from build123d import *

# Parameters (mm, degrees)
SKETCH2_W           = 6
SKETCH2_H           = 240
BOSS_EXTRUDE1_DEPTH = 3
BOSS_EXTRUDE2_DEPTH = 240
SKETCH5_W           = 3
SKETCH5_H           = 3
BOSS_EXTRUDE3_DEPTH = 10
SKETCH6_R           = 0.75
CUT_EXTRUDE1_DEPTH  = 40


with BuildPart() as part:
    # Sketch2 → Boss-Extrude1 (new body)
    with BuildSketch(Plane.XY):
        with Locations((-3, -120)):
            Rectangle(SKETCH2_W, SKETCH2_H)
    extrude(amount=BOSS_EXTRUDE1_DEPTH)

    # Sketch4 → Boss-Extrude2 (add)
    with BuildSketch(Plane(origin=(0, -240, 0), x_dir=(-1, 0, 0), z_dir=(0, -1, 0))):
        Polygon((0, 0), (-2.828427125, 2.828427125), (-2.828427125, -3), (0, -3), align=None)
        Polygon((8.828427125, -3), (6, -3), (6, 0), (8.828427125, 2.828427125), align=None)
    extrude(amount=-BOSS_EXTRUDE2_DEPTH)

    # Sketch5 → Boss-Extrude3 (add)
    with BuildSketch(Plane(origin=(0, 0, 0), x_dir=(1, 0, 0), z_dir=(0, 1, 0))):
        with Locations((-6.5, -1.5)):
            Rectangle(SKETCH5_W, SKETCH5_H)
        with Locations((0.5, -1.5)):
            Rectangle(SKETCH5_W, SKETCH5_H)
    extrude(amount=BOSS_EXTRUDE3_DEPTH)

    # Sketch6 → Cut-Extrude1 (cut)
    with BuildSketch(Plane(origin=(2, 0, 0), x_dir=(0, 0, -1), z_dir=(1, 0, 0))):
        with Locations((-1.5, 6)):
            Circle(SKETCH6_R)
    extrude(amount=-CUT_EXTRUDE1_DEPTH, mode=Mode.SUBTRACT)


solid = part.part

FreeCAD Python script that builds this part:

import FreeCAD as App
import Part
import Sketcher

doc = App.newDocument("Part")
body = doc.addObject("PartDesign::Body", "Body")

# Sketch on XY plane
sketch1 = doc.addObject("Sketcher::SketchObject", "Sketch")
body.addObject(sketch1)
sketch1.AttachmentSupport = (doc.XY_Plane, [""])
sketch1.MapMode = "FlatFace"
sketch1.addGeometry([
    Part.LineSegment(App.Vector(-6, 0, 0), App.Vector(-6, -240, 0)),
    Part.LineSegment(App.Vector(-6, -240, 0), App.Vector(0, -240, 0)),
    Part.LineSegment(App.Vector(0, -240, 0), App.Vector(0, 0, 0)),
    Part.LineSegment(App.Vector(0, 0, 0), App.Vector(-6, 0, 0)),
], False)
sketch1.addConstraint([
    Sketcher.Constraint("Coincident", 0, 2, 1, 1),
    Sketcher.Constraint("Coincident", 1, 2, 2, 1),
    Sketcher.Constraint("Coincident", 2, 2, 3, 1),
    Sketcher.Constraint("Coincident", 3, 2, 0, 1),
    Sketcher.Constraint("Vertical", 0),
    Sketcher.Constraint("Horizontal", 1),
    Sketcher.Constraint("Vertical", 2),
    Sketcher.Constraint("Horizontal", 3),
    Sketcher.Constraint("Coincident", 2, 2, -1, 1),
    Sketcher.Constraint("DistanceX", 1, 1, 1, 2, 6.0),
    Sketcher.Constraint("DistanceY", 0, 2, 0, 1, 240.0),
])
pad1 = doc.addObject("PartDesign::Pad", "Pad")
body.addObject(pad1)
pad1.Profile = sketch1
pad1.Length = 3

# Sketch on XZ plane
sketch2 = doc.addObject("Sketcher::SketchObject", "Sketch001")
body.addObject(sketch2)
sketch2.AttachmentSupport = (doc.XZ_Plane, [""])
sketch2.MapMode = "FlatFace"
sketch2.AttachmentOffset = App.Placement(App.Vector(0, 0, 240), App.Rotation())
sketch2.addGeometry([
    Part.LineSegment(App.Vector(0, 0, 0), App.Vector(2.8, -2.8, 0)),  # 0
    Part.LineSegment(App.Vector(2.8, -2.8, 0), App.Vector(2.8, 3, 0)),  # 1
    Part.LineSegment(App.Vector(2.8, 3, 0), App.Vector(0, 3, 0)),  # 2
    Part.LineSegment(App.Vector(0, 3, 0), App.Vector(0, 0, 0)),  # 3
    Part.LineSegment(App.Vector(-6, 3, 0), App.Vector(-8.8, 3, 0)),  # 4
    Part.LineSegment(App.Vector(-8.8, 3, 0), App.Vector(-8.8, -2.8, 0)),  # 5
    Part.LineSegment(App.Vector(-8.8, -2.8, 0), App.Vector(-6, 0, 0)),  # 6
    Part.LineSegment(App.Vector(-6, 0, 0), App.Vector(-6, 3, 0)),  # 7
], False)
sketch2.addConstraint([
    Sketcher.Constraint("Coincident", 0, 2, 1, 1),
    Sketcher.Constraint("Coincident", 1, 2, 2, 1),
    Sketcher.Constraint("Coincident", 2, 2, 3, 1),
    Sketcher.Constraint("Coincident", 3, 2, 0, 1),
    Sketcher.Constraint("Coincident", 4, 2, 5, 1),
    Sketcher.Constraint("Coincident", 5, 2, 6, 1),
    Sketcher.Constraint("Coincident", 6, 2, 7, 1),
    Sketcher.Constraint("Coincident", 7, 2, 4, 1),
    Sketcher.Constraint("Vertical", 1),
    Sketcher.Constraint("Horizontal", 2),
    Sketcher.Constraint("Vertical", 3),
    Sketcher.Constraint("Horizontal", 4),
    Sketcher.Constraint("Vertical", 5),
    Sketcher.Constraint("Vertical", 7),
    Sketcher.Constraint("Coincident", 3, 2, -1, 1),
    Sketcher.Constraint("PointOnObject", 6, 2, -1),
    Sketcher.Constraint("Perpendicular", 0, 6),
    Sketcher.Constraint("Horizontal", 2, 2, 4, 2),
    Sketcher.Constraint("Horizontal", 0, 2, 5, 2),
    Sketcher.Constraint("Equal", 2, 4),
    Sketcher.Constraint("DistanceY", 3, 2, 3, 1, 3.0),
    Sketcher.Constraint("Distance", 0, 4.0),
    Sketcher.Constraint("DistanceX", 6, 2, -1, 1, 6.0),
])
pad2 = doc.addObject("PartDesign::Pad", "Pad001")
body.addObject(pad2)
pad2.Profile = sketch2
pad2.Length = 240
pad2.Reversed = True

# Sketch on XZ plane
sketch3 = doc.addObject("Sketcher::SketchObject", "Sketch002")
body.addObject(sketch3)
sketch3.AttachmentSupport = (doc.XZ_Plane, [""])
sketch3.MapMode = "FlatFace"
sketch3.addGeometry([
    Part.LineSegment(App.Vector(-8, 0, 0), App.Vector(-8, 3, 0)),  # 0
    Part.LineSegment(App.Vector(-8, 3, 0), App.Vector(-5, 3, 0)),  # 1
    Part.LineSegment(App.Vector(-5, 3, 0), App.Vector(-5, 0, 0)),  # 2
    Part.LineSegment(App.Vector(-5, 0, 0), App.Vector(-8, 0, 0)),  # 3
    Part.LineSegment(App.Vector(-1, 0, 0), App.Vector(-1, 3, 0)),  # 4
    Part.LineSegment(App.Vector(-1, 3, 0), App.Vector(2, 3, 0)),  # 5
    Part.LineSegment(App.Vector(2, 3, 0), App.Vector(2, 0, 0)),  # 6
    Part.LineSegment(App.Vector(2, 0, 0), App.Vector(-1, 0, 0)),  # 7
], False)
sketch3.addConstraint([
    Sketcher.Constraint("Coincident", 0, 2, 1, 1),
    Sketcher.Constraint("Coincident", 1, 2, 2, 1),
    Sketcher.Constraint("Coincident", 2, 2, 3, 1),
    Sketcher.Constraint("Coincident", 3, 2, 0, 1),
    Sketcher.Constraint("Coincident", 4, 2, 5, 1),
    Sketcher.Constraint("Coincident", 5, 2, 6, 1),
    Sketcher.Constraint("Coincident", 6, 2, 7, 1),
    Sketcher.Constraint("Coincident", 7, 2, 4, 1),
    Sketcher.Constraint("Vertical", 0),
    Sketcher.Constraint("Horizontal", 1),
    Sketcher.Constraint("Vertical", 2),
    Sketcher.Constraint("Horizontal", 3),
    Sketcher.Constraint("Vertical", 4),
    Sketcher.Constraint("Horizontal", 5),
    Sketcher.Constraint("Vertical", 6),
    Sketcher.Constraint("Horizontal", 7),
    Sketcher.Constraint("PointOnObject", 2, 2, -1),
    Sketcher.Constraint("PointOnObject", 6, 2, -1),
    Sketcher.Constraint("Horizontal", 1, 2, 4, 2),
    Sketcher.Constraint("Equal", 3, 5),
    Sketcher.Constraint("Equal", 7, 0),
    Sketcher.Constraint("DistanceX", 1, 1, 1, 2, 3.0),
    Sketcher.Constraint("DistanceX", 0, 2, -1, 1, 8.0),
    Sketcher.Constraint("DistanceX", 4, 2, -1, 1, 1.0),
])
pad3 = doc.addObject("PartDesign::Pad", "Pad002")
body.addObject(pad3)
pad3.Profile = sketch3
pad3.Length = 10
pad3.Reversed = True

# Sketch on YZ plane
sketch4 = doc.addObject("Sketcher::SketchObject", "Sketch003")
body.addObject(sketch4)
sketch4.AttachmentSupport = (doc.YZ_Plane, [""])
sketch4.MapMode = "FlatFace"
sketch4.AttachmentOffset = App.Placement(App.Vector(0, 0, 2), App.Rotation())
sketch4.addGeometry(Part.Circle(App.Vector(6, 1.5, 0), App.Vector(0, 0, 1), 0.8), False)
sketch4.addConstraint([
    Sketcher.Constraint("Diameter", 0, 1.5),
    Sketcher.Constraint("DistanceX", -1, 1, 0, 3, 6.0),
    Sketcher.Constraint("DistanceY", -1, 1, 0, 3, 1.5),
])
pocket1 = doc.addObject("PartDesign::Pocket", "Pocket")
body.addObject(pocket1)
pocket1.Profile = sketch4
pocket1.Length = 40

doc.recompute()
